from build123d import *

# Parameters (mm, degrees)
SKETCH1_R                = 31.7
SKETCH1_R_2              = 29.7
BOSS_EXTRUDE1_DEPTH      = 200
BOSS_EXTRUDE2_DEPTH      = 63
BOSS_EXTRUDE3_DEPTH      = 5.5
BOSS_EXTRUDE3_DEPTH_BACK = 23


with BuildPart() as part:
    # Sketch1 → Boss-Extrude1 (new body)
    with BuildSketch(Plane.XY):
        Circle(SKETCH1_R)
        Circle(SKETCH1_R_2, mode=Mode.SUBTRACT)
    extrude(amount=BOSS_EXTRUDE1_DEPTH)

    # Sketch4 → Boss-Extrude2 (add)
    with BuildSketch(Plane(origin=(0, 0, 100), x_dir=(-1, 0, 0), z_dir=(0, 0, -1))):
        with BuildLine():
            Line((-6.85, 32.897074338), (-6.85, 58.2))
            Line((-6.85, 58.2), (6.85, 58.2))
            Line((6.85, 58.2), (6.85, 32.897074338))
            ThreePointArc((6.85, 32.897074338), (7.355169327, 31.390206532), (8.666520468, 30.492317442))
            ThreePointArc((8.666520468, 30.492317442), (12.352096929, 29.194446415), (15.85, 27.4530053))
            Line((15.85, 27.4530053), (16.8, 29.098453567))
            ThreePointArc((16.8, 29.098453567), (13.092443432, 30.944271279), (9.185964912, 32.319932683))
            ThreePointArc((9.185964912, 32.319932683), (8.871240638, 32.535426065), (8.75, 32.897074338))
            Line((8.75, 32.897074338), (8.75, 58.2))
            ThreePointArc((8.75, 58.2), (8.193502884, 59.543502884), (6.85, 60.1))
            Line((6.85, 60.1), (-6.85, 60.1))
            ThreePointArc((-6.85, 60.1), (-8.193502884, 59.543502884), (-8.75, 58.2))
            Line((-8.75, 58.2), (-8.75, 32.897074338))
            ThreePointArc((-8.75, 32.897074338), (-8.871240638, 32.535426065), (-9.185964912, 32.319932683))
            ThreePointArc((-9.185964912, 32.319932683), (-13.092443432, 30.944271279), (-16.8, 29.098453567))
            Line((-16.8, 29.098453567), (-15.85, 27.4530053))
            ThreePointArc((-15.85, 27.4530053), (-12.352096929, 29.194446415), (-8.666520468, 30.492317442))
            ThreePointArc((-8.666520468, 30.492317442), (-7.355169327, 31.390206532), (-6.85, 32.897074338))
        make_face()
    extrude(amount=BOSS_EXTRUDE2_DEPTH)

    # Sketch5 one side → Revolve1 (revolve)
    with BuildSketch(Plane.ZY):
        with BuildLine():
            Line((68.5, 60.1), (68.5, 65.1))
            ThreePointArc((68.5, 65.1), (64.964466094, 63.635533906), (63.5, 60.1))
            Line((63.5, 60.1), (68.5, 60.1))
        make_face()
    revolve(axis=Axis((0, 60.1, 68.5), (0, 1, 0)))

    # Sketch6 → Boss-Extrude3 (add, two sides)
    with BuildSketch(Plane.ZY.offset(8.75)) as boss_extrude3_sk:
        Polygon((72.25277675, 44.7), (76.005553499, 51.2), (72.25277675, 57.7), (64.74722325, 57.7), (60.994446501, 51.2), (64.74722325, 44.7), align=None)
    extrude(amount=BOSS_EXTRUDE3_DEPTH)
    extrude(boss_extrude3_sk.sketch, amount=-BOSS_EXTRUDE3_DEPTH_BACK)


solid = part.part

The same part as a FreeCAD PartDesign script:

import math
import FreeCAD as App
import Part
import Sketcher

V = App.Vector
Q = App.Units.Quantity

doc = App.newDocument("Part")
body = doc.addObject("PartDesign::Body", "Body")

sketch1 = doc.addObject("Sketcher::SketchObject", "Sketch")
body.addObject(sketch1)
sketch1.AttachmentSupport = (doc.XY_Plane, [""])
sketch1.MapMode = "FlatFace"
sketch1.addGeometry([
    Part.Circle(V(0, 0, 0), V(0, 0, 1), 32),
    Part.Circle(V(0, 0, 0), V(0, 0, 1), 30),
], False)
sketch1.addConstraint([
    Sketcher.Constraint("Coincident", 0, 3, -1, 1),
    Sketcher.Constraint("Coincident", 1, 3, -1, 1),
    Sketcher.Constraint("Diameter", 0, 63.4),
    Sketcher.Constraint("Diameter", 1, 59.4),
])
pad1 = doc.addObject("PartDesign::Pad", "Pad")
body.addObject(pad1)
pad1.Profile = sketch1
pad1.Length = 200

sketch2 = doc.addObject("Sketcher::SketchObject", "Sketch001")
body.addObject(sketch2)
sketch2.AttachmentSupport = (doc.XY_Plane, [""])
sketch2.MapMode = "FlatFace"
sketch2.AttachmentOffset = App.Placement(V(0, 0, 100), App.Rotation())
sketch2.addGeometry([
    Part.LineSegment(V(6.8, 32.9, 0), V(6.8, 58.2, 0)),
    Part.LineSegment(V(6.8, 58.2, 0), V(-6.8, 58.2, 0)),
    Part.LineSegment(V(-6.8, 58.2, 0), V(-6.8, 32.9, 0)),
    Part.ArcOfCircle(Part.Circle(V(-9.4, 32.9, 0), V(0, 0, 1), 2.5), math.radians(-74), math.radians(0)),
    Part.ArcOfCircle(Part.Circle(V(0, 0, 0), V(0, 0, 1), 31.7), math.radians(105.87), math.radians(120)),
    Part.LineSegment(V(-15.8, 27.5, 0), V(-16.8, 29.1, 0)),
    Part.ArcOfCircle(Part.Circle(V(0, 0, 0), V(0, 0, 1), 33.6), math.radians(105.87), math.radians(120)),
    Part.ArcOfCircle(Part.Circle(V(-9.3, 32.9, 0), V(0, 0, 1), 0.6), math.radians(-74), math.radians(0)),
    Part.LineSegment(V(-8.8, 32.9, 0), V(-8.8, 58.2, 0)),
    Part.ArcOfCircle(Part.Circle(V(-6.8, 58.2, 0), V(0, 0, 1), 1.9), math.radians(90), math.radians(180)),
    Part.LineSegment(V(-6.8, 60.1, 0), V(6.8, 60.1, 0)),
    Part.ArcOfCircle(Part.Circle(V(6.8, 58.2, 0), V(0, 0, 1), 1.9), math.radians(0), math.radians(90)),
    Part.LineSegment(V(8.8, 58.2, 0), V(8.8, 32.9, 0)),
    Part.ArcOfCircle(Part.Circle(V(9.3, 32.9, 0), V(0, 0, 1), 0.6), math.radians(180), math.radians(254)),
    Part.ArcOfCircle(Part.Circle(V(0, 0, 0), V(0, 0, 1), 33.6), math.radians(60), math.radians(74.13)),
    Part.LineSegment(V(16.8, 29.1, 0), V(15.8, 27.5, 0)),
    Part.ArcOfCircle(Part.Circle(V(0, 0, 0), V(0, 0, 1), 31.7), math.radians(60), math.radians(74.13)),
    Part.ArcOfCircle(Part.Circle(V(9.4, 32.9, 0), V(0, 0, 1), 2.5), math.radians(-180), math.radians(-106)),
], False)
sketch2.addConstraint([
    Sketcher.Constraint("Coincident", 0, 2, 1, 1),
    Sketcher.Constraint("Coincident", 1, 2, 2, 1),
    Sketcher.Constraint("Tangent", 2, 2, 3, 2),
    Sketcher.Constraint("Tangent", 3, 1, 4, 1),
    Sketcher.Constraint("Coincident", 4, 2, 5, 1),
    Sketcher.Constraint("Coincident", 5, 2, 6, 2),
    Sketcher.Constraint("Tangent", 6, 1, 7, 1),
    Sketcher.Constraint("Tangent", 7, 2, 8, 1),
    Sketcher.Constraint("Tangent", 8, 2, 9, 2),
    Sketcher.Constraint("Tangent", 9, 1, 10, 1),
    Sketcher.Constraint("Tangent", 10, 2, 11, 2),
    Sketcher.Constraint("Tangent", 11, 1, 12, 1),
    Sketcher.Constraint("Tangent", 12, 2, 13, 1),
    Sketcher.Constraint("Tangent", 13, 2, 14, 2),
    Sketcher.Constraint("Coincident", 14, 1, 15, 1),
    Sketcher.Constraint("Coincident", 15, 2, 16, 1),
    Sketcher.Constraint("Tangent", 16, 2, 17, 2),
    Sketcher.Constraint("Tangent", 17, 1, 0, 1),
    Sketcher.Constraint("Vertical", 0),
    Sketcher.Constraint("Horizontal", 1),
    Sketcher.Constraint("Vertical", 2),
    Sketcher.Constraint("Vertical", 8),
    Sketcher.Constraint("Horizontal", 10),
    Sketcher.Constraint("Vertical", 12),
    Sketcher.Constraint("Coincident", 4, 3, -1, 1),
    Sketcher.Constraint("Coincident", 6, 3, -1, 1),
    Sketcher.Constraint("Coincident", 14, 3, -1, 1),
    Sketcher.Constraint("Coincident", 16, 3, -1, 1),
    Sketcher.Constraint("Coincident", 7, 3, 3, 3),
    Sketcher.Constraint("Coincident", 17, 3, 13, 3),
    Sketcher.Constraint("Coincident", 0, 2, 11, 3),
    Sketcher.Constraint("Coincident", 1, 2, 9, 3),
    Sketcher.Constraint("Equal", 7, 13),
    Sketcher.Constraint("Equal", 6, 14),
    Sketcher.Constraint("Horizontal", 7, 3, 13, 3),
    Sketcher.Constraint("Horizontal", 5, 2, 14, 1),
    Sketcher.Constraint("Horizontal", 4, 2, 15, 2),
    Sketcher.Constraint("Radius", 3, 2.5),
    Sketcher.Constraint("Radius", 4, 31.7),
    Sketcher.Constraint("Radius", 6, 33.6),
    Sketcher.Constraint("Angle", 5, Q("120 deg")),
    Sketcher.Constraint("DistanceX", 1, 2, 1, 1, 13.7),
    Sketcher.Constraint("DistanceX", 4, 2, 2, 2, 9.0),
    Sketcher.Constraint("DistanceY", -1, 1, 9, 3, 58.2),
])
pad2 = doc.addObject("PartDesign::Pad", "Pad001")
body.addObject(pad2)
pad2.Profile = sketch2
pad2.Length = 63
pad2.Reversed = True

sketch3 = doc.addObject("Sketcher::SketchObject", "Sketch002")
body.addObject(sketch3)
sketch3.AttachmentSupport = (doc.YZ_Plane, [""])
sketch3.MapMode = "FlatFace"
sketch3.addGeometry([
    Part.LineSegment(V(60.1, 68.5, 0), V(65.1, 68.5, 0)),
    Part.ArcOfCircle(Part.Circle(V(60.1, 68.5, 0), V(0, 0, 1), 5), math.radians(-90), math.radians(0)),
    Part.LineSegment(V(60.1, 63.5, 0), V(60.1, 68.5, 0)),
], False)
sketch3.addGeometry(Part.LineSegment(V(60.1, 68.5, 0), V(65.1, 68.5, 0)), True)
sketch3.addConstraint([
    Sketcher.Constraint("Coincident", 0, 2, 1, 2),
    Sketcher.Constraint("Coincident", 1, 1, 2, 1),
    Sketcher.Constraint("Coincident", 2, 2, 0, 1),
    Sketcher.Constraint("Horizontal", 0),
    Sketcher.Constraint("Vertical", 2),
    Sketcher.Constraint("Horizontal", 3),
    Sketcher.Constraint("Coincident", 2, 2, 1, 3),
    Sketcher.Constraint("Coincident", 3, 1, 1, 3),
    Sketcher.Constraint("Equal", 0, 3),
    Sketcher.Constraint("Radius", 1, 5.0),
    Sketcher.Constraint("DistanceX", -1, 1, 1, 3, 60.1),
    Sketcher.Constraint("DistanceY", -1, 1, 1, 3, 68.5),
])
revolution = doc.addObject("PartDesign::Revolution", "Revolution")
body.addObject(revolution)
revolution.Profile = sketch3
revolution.ReferenceAxis = (sketch3, ["Axis0"])
revolution.Angle = 360

sketch4 = doc.addObject("Sketcher::SketchObject", "Sketch003")
body.addObject(sketch4)
sketch4.AttachmentSupport = (doc.YZ_Plane, [""])
sketch4.MapMode = "FlatFace"
sketch4.AttachmentOffset = App.Placement(V(0, 0, -8.75), App.Rotation())
sketch4.addGeometry([
    Part.LineSegment(V(45, 72, 0), V(51, 76, 0)),
    Part.LineSegment(V(51, 76, 0), V(58, 72, 0)),
    Part.LineSegment(V(58, 72, 0), V(58, 65, 0)),
    Part.LineSegment(V(58, 65, 0), V(51, 61, 0)),
    Part.LineSegment(V(51, 61, 0), V(45, 65, 0)),
    Part.LineSegment(V(45, 65, 0), V(45, 72, 0)),
], False)
sketch4.addConstraint([
    Sketcher.Constraint("Coincident", 0, 2, 1, 1),
    Sketcher.Constraint("Coincident", 1, 2, 2, 1),
    Sketcher.Constraint("Coincident", 2, 2, 3, 1),
    Sketcher.Constraint("Coincident", 3, 2, 4, 1),
    Sketcher.Constraint("Coincident", 4, 2, 5, 1),
    Sketcher.Constraint("Coincident", 5, 2, 0, 1),
    Sketcher.Constraint("Vertical", 2),
    Sketcher.Constraint("Vertical", 5),
    Sketcher.Constraint("Parallel", 0, 3),
    Sketcher.Constraint("Parallel", 1, 4),
    Sketcher.Constraint("Horizontal", 2, 2, 4, 2),
    Sketcher.Constraint("Horizontal", 1, 2, 5, 2),
    Sketcher.Constraint("Vertical", 0, 2, 3, 2),
    Sketcher.Constraint("Angle", 0, Q("30 deg")),
    Sketcher.Constraint("DistanceX", 4, 2, 2, 2, 13.0),
    Sketcher.Constraint("DistanceX", -1, 1, 0, 2, 51.2),
    Sketcher.Constraint("DistanceY", 2, 2, 2, 1, 7.505553),
    Sketcher.Constraint("DistanceY", -1, 1, 0, 2, 76.005553),
])
pad3 = doc.addObject("PartDesign::Pad", "Pad002")
body.addObject(pad3)
pad3.Profile = sketch4
pad3.Type = "TwoLengths"
pad3.Length = 5.5
pad3.Length2 = 23
pad3.Reversed = True

doc.recompute()
